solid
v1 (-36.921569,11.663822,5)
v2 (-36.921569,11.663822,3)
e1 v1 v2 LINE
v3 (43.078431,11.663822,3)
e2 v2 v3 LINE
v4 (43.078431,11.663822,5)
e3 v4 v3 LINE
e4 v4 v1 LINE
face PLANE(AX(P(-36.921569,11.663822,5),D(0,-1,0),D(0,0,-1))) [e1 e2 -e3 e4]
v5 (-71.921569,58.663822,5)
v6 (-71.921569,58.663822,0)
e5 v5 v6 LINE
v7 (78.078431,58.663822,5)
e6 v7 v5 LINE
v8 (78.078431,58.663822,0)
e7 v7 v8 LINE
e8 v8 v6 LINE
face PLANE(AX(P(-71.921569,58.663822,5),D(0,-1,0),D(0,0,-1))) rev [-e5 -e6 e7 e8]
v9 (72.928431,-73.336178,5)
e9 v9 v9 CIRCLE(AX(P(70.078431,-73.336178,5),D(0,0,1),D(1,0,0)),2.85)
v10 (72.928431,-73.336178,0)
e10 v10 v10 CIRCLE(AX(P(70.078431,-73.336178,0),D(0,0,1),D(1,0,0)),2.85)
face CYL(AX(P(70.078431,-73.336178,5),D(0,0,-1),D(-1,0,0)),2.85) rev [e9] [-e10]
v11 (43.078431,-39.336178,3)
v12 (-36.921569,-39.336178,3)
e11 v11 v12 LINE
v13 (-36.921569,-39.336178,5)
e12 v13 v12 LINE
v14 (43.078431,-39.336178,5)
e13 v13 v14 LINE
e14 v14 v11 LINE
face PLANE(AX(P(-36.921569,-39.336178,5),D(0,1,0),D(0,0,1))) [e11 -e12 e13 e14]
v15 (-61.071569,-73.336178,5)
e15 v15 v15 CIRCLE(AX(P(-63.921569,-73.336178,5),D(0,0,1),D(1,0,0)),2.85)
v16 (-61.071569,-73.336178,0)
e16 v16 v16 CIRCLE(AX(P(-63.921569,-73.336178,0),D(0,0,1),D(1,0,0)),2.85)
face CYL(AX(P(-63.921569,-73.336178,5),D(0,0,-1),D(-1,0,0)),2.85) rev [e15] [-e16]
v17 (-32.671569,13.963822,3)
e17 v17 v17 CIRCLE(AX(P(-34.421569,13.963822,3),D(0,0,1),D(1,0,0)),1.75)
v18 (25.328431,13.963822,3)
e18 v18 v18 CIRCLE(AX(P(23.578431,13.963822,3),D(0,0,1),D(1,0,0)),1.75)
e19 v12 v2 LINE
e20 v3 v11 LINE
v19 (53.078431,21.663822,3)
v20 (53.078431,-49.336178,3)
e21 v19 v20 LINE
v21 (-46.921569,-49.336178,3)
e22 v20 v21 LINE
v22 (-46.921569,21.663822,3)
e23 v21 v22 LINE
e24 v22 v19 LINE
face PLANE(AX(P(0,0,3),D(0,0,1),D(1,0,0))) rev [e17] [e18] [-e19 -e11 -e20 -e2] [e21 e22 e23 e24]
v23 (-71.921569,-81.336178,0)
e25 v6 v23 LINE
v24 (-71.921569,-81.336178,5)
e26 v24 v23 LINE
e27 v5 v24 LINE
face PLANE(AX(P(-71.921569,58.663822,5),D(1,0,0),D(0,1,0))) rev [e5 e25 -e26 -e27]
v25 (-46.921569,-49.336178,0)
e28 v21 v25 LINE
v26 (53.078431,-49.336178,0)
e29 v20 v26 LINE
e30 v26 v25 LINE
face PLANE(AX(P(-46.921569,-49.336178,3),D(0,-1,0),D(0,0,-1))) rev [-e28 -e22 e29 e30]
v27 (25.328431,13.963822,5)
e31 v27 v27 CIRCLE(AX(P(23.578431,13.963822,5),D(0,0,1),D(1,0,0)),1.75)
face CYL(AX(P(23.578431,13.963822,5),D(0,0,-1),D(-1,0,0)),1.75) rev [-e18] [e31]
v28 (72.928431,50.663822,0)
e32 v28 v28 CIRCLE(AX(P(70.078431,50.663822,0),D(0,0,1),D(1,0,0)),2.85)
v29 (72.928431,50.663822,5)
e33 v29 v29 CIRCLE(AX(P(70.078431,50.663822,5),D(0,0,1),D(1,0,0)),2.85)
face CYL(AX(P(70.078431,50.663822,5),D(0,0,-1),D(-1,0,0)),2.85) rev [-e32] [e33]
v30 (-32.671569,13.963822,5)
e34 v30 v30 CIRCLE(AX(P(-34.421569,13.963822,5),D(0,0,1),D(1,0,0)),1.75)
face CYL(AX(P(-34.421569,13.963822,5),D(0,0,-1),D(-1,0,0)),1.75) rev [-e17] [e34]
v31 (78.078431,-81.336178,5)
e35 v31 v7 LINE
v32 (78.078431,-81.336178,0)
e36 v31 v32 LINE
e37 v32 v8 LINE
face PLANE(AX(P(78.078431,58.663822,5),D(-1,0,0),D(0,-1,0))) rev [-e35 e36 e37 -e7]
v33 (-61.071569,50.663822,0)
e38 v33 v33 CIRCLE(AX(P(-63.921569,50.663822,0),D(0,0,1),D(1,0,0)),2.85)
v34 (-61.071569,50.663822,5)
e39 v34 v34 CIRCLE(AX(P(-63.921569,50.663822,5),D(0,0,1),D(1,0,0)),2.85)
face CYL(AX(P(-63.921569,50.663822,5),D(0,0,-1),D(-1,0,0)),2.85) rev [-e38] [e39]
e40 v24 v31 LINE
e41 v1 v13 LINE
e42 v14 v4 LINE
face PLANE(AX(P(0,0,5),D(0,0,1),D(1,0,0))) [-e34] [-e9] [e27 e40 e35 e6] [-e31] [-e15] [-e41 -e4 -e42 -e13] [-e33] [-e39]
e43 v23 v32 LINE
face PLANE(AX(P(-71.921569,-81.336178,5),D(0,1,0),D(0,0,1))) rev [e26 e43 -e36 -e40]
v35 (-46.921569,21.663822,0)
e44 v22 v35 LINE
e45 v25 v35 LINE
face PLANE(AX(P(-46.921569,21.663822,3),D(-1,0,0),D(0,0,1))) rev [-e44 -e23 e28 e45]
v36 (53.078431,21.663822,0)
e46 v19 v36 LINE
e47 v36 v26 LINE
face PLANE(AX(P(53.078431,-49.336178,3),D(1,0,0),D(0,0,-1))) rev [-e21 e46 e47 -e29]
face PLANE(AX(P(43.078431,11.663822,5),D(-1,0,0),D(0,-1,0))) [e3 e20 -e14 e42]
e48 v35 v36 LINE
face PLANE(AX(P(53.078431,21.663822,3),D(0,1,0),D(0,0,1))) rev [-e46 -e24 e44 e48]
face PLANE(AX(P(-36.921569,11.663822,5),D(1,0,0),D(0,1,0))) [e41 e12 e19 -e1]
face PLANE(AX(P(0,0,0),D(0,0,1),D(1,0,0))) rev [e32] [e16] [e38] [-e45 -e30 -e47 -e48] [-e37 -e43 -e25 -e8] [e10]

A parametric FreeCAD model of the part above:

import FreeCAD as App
import Part
import Sketcher
Q = App.Units.Quantity

doc = App.newDocument("Part")
body = doc.addObject("PartDesign::Body", "Body")

# Sketch on XY plane
sketch1 = body.newObject("Sketcher::SketchObject", "Sketch")
sketch1.AttachmentSupport = (doc.getObject("XY_Plane"), [""])
sketch1.MapMode = "FlatFace"
sketch1.addGeometry([
    Part.LineSegment(App.Vector(-71.921569, 58.663822, 0), App.Vector(-71.921569, -81.336178, 0)),  # 0
    Part.LineSegment(App.Vector(-71.921569, -81.336178, 0), App.Vector(78.078431, -81.336178, 0)),  # 1
    Part.LineSegment(App.Vector(78.078431, -81.336178, 0), App.Vector(78.078431, 58.663822, 0)),  # 2
    Part.LineSegment(App.Vector(78.078431, 58.663822, 0), App.Vector(-71.921569, 58.663822, 0)),  # 3
    Part.Circle(App.Vector(-63.921569, -73.336178, 0), App.Vector(0, 0, 1), 2.85),  # 4
    Part.Circle(App.Vector(70.078431, -73.336178, 0), App.Vector(0, 0, 1), 2.85),  # 5
    Part.LineSegment(App.Vector(43.078431, -39.336178, 0), App.Vector(-36.921569, -39.336178, 0)),  # 6
    Part.LineSegment(App.Vector(-36.921569, -39.336178, 0), App.Vector(-36.921569, 11.663822, 0)),  # 7
    Part.LineSegment(App.Vector(-36.921569, 11.663822, 0), App.Vector(43.078431, 11.663822, 0)),  # 8
    Part.LineSegment(App.Vector(43.078431, 11.663822, 0), App.Vector(43.078431, -39.336178, 0)),  # 9
    Part.Circle(App.Vector(-34.421569, 13.963822, 0), App.Vector(0, 0, 1), 1.75),  # 10
    Part.Circle(App.Vector(-63.921569, 50.663822, 0), App.Vector(0, 0, 1), 2.85),  # 11
    Part.Circle(App.Vector(23.578431, 13.963822, 0), App.Vector(0, 0, 1), 1.75),  # 12
    Part.Circle(App.Vector(70.078431, 50.663822, 0), App.Vector(0, 0, 1), 2.85),  # 13
], False)
sketch1.addConstraint([
    Sketcher.Constraint("Coincident", 0, 2, 1, 1),
    Sketcher.Constraint("Coincident", 1, 2, 2, 1),
    Sketcher.Constraint("Coincident", 2, 2, 3, 1),
    Sketcher.Constraint("Coincident", 3, 2, 0, 1),
    Sketcher.Constraint("Coincident", 6, 2, 7, 1),
    Sketcher.Constraint("Coincident", 7, 2, 8, 1),
    Sketcher.Constraint("Coincident", 8, 2, 9, 1),
    Sketcher.Constraint("Coincident", 9, 2, 6, 1),
    Sketcher.Constraint("Vertical", 0),
    Sketcher.Constraint("Horizontal", 1),
    Sketcher.Constraint("Vertical", 2),
    Sketcher.Constraint("Horizontal", 3),
    Sketcher.Constraint("Horizontal", 6),
    Sketcher.Constraint("Vertical", 7),
    Sketcher.Constraint("Horizontal", 8),
    Sketcher.Constraint("Vertical", 9),
    Sketcher.Constraint("Equal", 4, 5),
    Sketcher.Constraint("Equal", 5, 11),
    Sketcher.Constraint("Equal", 10, 12),
    Sketcher.Constraint("Equal", 11, 13),
    Sketcher.Constraint("Horizontal", 4, 3, 5, 3),
    Sketcher.Constraint("Horizontal", 10, 3, 12, 3),
    Sketcher.Constraint("Horizontal", 11, 3, 13, 3),
    Sketcher.Constraint("Vertical", 4, 3, 11, 3),
    Sketcher.Constraint("Vertical", 5, 3, 13, 3),
    Sketcher.Constraint("Diameter", 4, Q("5.7 mm")),
    Sketcher.Constraint("Diameter", 10, Q("3.5 mm")),
    Sketcher.Constraint("DistanceX", 1, 1, 1, 2, Q("150 mm")),
    Sketcher.Constraint("DistanceX", 6, 2, 6, 1, Q("80 mm")),
    Sketcher.Constraint("DistanceY", 0, 2, 0, 1, Q("140 mm")),
    Sketcher.Constraint("DistanceY", 7, 1, 7, 2, Q("51 mm")),
    Sketcher.Constraint("DistanceX", 4, 3, 5, 3, Q("134 mm")),
    Sketcher.Constraint("DistanceY", 4, 3, 11, 3, Q("124 mm")),
    Sketcher.Constraint("DistanceX", 10, 3, 12, 3, Q("58 mm")),
    Sketcher.Constraint("DistanceX", 0, 2, 4, 3, Q("8 mm")),
    Sketcher.Constraint("DistanceY", 0, 2, 4, 3, Q("8 mm")),
    Sketcher.Constraint("DistanceX", 4, 3, 6, 2, Q("27 mm")),
    Sketcher.Constraint("DistanceY", 4, 3, 6, 2, Q("34 mm")),
    Sketcher.Constraint("DistanceX", 4, 3, 10, 3, Q("29.5 mm")),
    Sketcher.Constraint("DistanceY", 4, 3, 10, 3, Q("87.3 mm")),
    Sketcher.Constraint("DistanceX", 4, 3, -1, 1, Q("63.921569 mm")),
    Sketcher.Constraint("DistanceY", 4, 3, -1, 1, Q("73.336178 mm")),
])
pad1 = body.newObject("PartDesign::Pad", "Pad")
pad1.Profile = sketch1
pad1.Length = 5

# Sketch on XY plane
sketch2 = body.newObject("Sketcher::SketchObject", "Sketch001")
sketch2.AttachmentSupport = (doc.getObject("XY_Plane"), [""])
sketch2.MapMode = "FlatFace"
sketch2.addGeometry([
    Part.LineSegment(App.Vector(53.078431, 21.663822, 0), App.Vector(53.078431, -49.336178, 0)),  # 0
    Part.LineSegment(App.Vector(53.078431, -49.336178, 0), App.Vector(-46.921569, -49.336178, 0)),  # 1
    Part.LineSegment(App.Vector(-46.921569, -49.336178, 0), App.Vector(-46.921569, 21.663822, 0)),  # 2
    Part.LineSegment(App.Vector(-46.921569, 21.663822, 0), App.Vector(53.078431, 21.663822, 0)),  # 3
    Part.LineSegment(App.Vector(-36.921569, -39.336178, 0), App.Vector(43.078431, -39.336178, 0)),  # 4
    Part.LineSegment(App.Vector(43.078431, -39.336178, 0), App.Vector(43.078431, 11.663822, 0)),  # 5
    Part.LineSegment(App.Vector(43.078431, 11.663822, 0), App.Vector(-36.921569, 11.663822, 0)),  # 6
    Part.LineSegment(App.Vector(-36.921569, 11.663822, 0), App.Vector(-36.921569, -39.336178, 0)),  # 7
], False)
sketch2.addConstraint([
    Sketcher.Constraint("Coincident", 0, 2, 1, 1),
    Sketcher.Constraint("Coincident", 1, 2, 2, 1),
    Sketcher.Constraint("Coincident", 2, 2, 3, 1),
    Sketcher.Constraint("Coincident", 3, 2, 0, 1),
    Sketcher.Constraint("Coincident", 4, 2, 5, 1),
    Sketcher.Constraint("Coincident", 5, 2, 6, 1),
    Sketcher.Constraint("Coincident", 6, 2, 7, 1),
    Sketcher.Constraint("Coincident", 7, 2, 4, 1),
    Sketcher.Constraint("Vertical", 0),
    Sketcher.Constraint("Horizontal", 1),
    Sketcher.Constraint("Vertical", 2),
    Sketcher.Constraint("Horizontal", 3),
    Sketcher.Constraint("Horizontal", 4),
    Sketcher.Constraint("Vertical", 5),
    Sketcher.Constraint("Horizontal", 6),
    Sketcher.Constraint("Vertical", 7),
    Sketcher.Constraint("DistanceX", 1, 2, 1, 1, Q("100 mm")),
    Sketcher.Constraint("DistanceX", 4, 1, 4, 2, Q("80 mm")),
    Sketcher.Constraint("DistanceY", 0, 2, 0, 1, Q("71 mm")),
    Sketcher.Constraint("DistanceY", 5, 1, 5, 2, Q("51 mm")),
    Sketcher.Constraint("DistanceX", 4, 2, 0, 2, Q("10 mm")),
    Sketcher.Constraint("DistanceY", 0, 2, 4, 2, Q("10 mm")),
    Sketcher.Constraint("DistanceX", -1, 1, 0, 2, Q("53.078431 mm")),
    Sketcher.Constraint("DistanceY", 0, 2, -1, 1, Q("49.336178 mm")),
])
pocket1 = body.newObject("PartDesign::Pocket", "Pocket")
pocket1.Profile = sketch2
pocket1.Length = 3
pocket1.Reversed = True

doc.recompute()
